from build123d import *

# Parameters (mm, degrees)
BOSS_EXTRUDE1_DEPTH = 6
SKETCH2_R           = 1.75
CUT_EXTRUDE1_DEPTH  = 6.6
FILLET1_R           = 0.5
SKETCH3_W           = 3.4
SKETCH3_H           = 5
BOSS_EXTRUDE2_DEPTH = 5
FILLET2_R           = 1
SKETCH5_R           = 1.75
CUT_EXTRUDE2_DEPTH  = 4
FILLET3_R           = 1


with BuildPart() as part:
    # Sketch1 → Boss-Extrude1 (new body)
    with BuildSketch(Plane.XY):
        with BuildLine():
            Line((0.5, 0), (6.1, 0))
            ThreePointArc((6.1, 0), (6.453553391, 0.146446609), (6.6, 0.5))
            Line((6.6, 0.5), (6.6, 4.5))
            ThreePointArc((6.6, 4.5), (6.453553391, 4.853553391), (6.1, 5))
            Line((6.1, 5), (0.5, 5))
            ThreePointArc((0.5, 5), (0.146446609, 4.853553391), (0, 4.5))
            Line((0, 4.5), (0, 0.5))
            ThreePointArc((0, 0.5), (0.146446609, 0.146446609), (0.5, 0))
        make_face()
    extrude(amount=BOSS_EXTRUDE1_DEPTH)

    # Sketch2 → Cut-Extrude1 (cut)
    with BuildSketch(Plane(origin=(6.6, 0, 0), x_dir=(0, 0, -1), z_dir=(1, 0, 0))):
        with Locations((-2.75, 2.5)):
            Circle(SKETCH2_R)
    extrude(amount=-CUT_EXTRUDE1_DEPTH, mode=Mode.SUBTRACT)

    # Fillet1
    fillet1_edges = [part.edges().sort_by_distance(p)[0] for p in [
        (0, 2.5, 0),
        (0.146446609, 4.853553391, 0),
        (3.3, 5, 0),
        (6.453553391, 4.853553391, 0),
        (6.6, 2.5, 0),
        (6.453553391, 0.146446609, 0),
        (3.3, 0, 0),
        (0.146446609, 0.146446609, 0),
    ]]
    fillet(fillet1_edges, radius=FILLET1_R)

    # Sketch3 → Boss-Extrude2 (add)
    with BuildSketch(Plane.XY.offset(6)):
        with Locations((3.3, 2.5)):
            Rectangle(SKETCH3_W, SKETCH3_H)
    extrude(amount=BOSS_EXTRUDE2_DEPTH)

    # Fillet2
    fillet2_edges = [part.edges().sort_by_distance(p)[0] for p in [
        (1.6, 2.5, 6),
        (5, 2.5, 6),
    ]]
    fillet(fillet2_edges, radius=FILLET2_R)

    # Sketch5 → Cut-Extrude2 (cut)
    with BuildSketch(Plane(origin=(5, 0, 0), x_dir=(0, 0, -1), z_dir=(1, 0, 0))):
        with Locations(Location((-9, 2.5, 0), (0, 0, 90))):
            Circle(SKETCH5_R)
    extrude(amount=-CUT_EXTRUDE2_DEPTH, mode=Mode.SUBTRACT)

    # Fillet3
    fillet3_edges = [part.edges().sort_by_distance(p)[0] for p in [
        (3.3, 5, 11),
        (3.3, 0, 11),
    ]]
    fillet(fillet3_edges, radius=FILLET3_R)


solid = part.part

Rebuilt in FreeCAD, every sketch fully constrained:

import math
import FreeCAD as App
import Part
import Sketcher
Q = App.Units.Quantity


def edges_at(feature, points):
    """Names of the edges that pass closest to the given points."""
    edges = feature.Shape.Edges
    near = lambda p: min(range(len(edges)), key=lambda i: edges[i].distToShape(Part.Vertex(*p))[0])
    return sorted({f"Edge{near(p) + 1}" for p in points})


def add_polygon(sketch, points):
    """Adds a closed chain of lines whose ends are joined by coincident constraints."""
    first, n = sketch.GeometryCount, len(points)
    for a, b in zip(points, points[1:] + points[:1]):
        sketch.addGeometry(Part.LineSegment(App.Vector(*a, 0), App.Vector(*b, 0)), False)
    for i in range(n):
        sketch.addConstraint(Sketcher.Constraint("Coincident", first + i, 2, first + (i + 1) % n, 1))

doc = App.newDocument("Part")
params = doc.addObject("Spreadsheet::Sheet", "Params")
for row, (alias, value) in enumerate([
    ("sketch1_radius", "0.5 mm"),
    ("sketch1_height", "4 mm"),
    ("sketch1_width", "5.6 mm"),
    ("pad1_length", "6 mm"),
    ("sketch2_diameter", "3.5 mm"),
    ("pocket1_length", "6.6 mm"),
    ("fillet_radius", "0.5 mm"),
    ("sketch3_height", "5 mm"),
    ("sketch3_width", "3.4 mm"),
    ("pad2_length", "5 mm"),
    ("fillet2_radius", "1 mm"),
    ("sketch4_diameter", "3.5 mm"),
    ("pocket2_length", "4 mm"),
    ("fillet3_radius", "1 mm"),
], start=1):
    params.set(f"A{row}", alias)
    params.set(f"B{row}", "=" + value)
    params.setAlias(f"B{row}", alias)

body = doc.addObject("PartDesign::Body", "Body")

# Sketch on XY plane
sketch1 = body.newObject("Sketcher::SketchObject", "Sketch")
sketch1.AttachmentSupport = (doc.getObject("XY_Plane"), [""])
sketch1.MapMode = "FlatFace"
sketch1.addGeometry(Part.LineSegment(App.Vector(0.5, 0, 0), App.Vector(6.1, 0, 0)), False)
sketch1.addGeometry(Part.ArcOfCircle(Part.Circle(App.Vector(6.1, 0.5, 0), App.Vector(0, 0, 1), 0.5), math.radians(-90), math.radians(0)), False)
sketch1.addGeometry(Part.LineSegment(App.Vector(6.6, 0.5, 0), App.Vector(6.6, 4.5, 0)), False)
sketch1.addGeometry(Part.ArcOfCircle(Part.Circle(App.Vector(6.1, 4.5, 0), App.Vector(0, 0, 1), 0.5), math.radians(0), math.radians(90)), False)
sketch1.addGeometry(Part.LineSegment(App.Vector(6.1, 5, 0), App.Vector(0.5, 5, 0)), False)
sketch1.addGeometry(Part.ArcOfCircle(Part.Circle(App.Vector(0.5, 4.5, 0), App.Vector(0, 0, 1), 0.5), math.radians(90), math.radians(180)), False)
sketch1.addGeometry(Part.LineSegment(App.Vector(0, 4.5, 0), App.Vector(0, 0.5, 0)), False)
sketch1.addGeometry(Part.ArcOfCircle(Part.Circle(App.Vector(0.5, 0.5, 0), App.Vector(0, 0, 1), 0.5), math.radians(180), math.radians(270)), False)
sketch1.addConstraint(Sketcher.Constraint("Tangent", 0, 2, 1, 1))
sketch1.addConstraint(Sketcher.Constraint("Tangent", 1, 2, 2, 1))
sketch1.addConstraint(Sketcher.Constraint("Tangent", 2, 2, 3, 1))
sketch1.addConstraint(Sketcher.Constraint("Tangent", 3, 2, 4, 1))
sketch1.addConstraint(Sketcher.Constraint("Tangent", 4, 2, 5, 1))
sketch1.addConstraint(Sketcher.Constraint("Tangent", 5, 2, 6, 1))
sketch1.addConstraint(Sketcher.Constraint("Tangent", 6, 2, 7, 1))
sketch1.addConstraint(Sketcher.Constraint("Tangent", 7, 2, 0, 1))
sketch1.addConstraint(Sketcher.Constraint("Horizontal", 0))
sketch1.addConstraint(Sketcher.Constraint("Vertical", 2))
sketch1.addConstraint(Sketcher.Constraint("Horizontal", 4))
sketch1.addConstraint(Sketcher.Constraint("Vertical", 6))
sketch1.addConstraint(Sketcher.Constraint("Equal", 1, 3))
sketch1.addConstraint(Sketcher.Constraint("Equal", 3, 5))
sketch1.addConstraint(Sketcher.Constraint("Equal", 5, 7))
sketch1.addConstraint(Sketcher.Constraint("PointOnObject", 0, 2, -1))
sketch1.addConstraint(Sketcher.Constraint("PointOnObject", 5, 2, -2))
sketch1.addConstraint(Sketcher.Constraint("Radius", 1, Q("0.5 mm")))
sketch1.addConstraint(Sketcher.Constraint("DistanceY", 2, 1, 2, 2, Q("4 mm")))
sketch1.addConstraint(Sketcher.Constraint("DistanceX", 0, 1, 0, 2, Q("5.6 mm")))
sketch1.setExpression("Constraints[17]", "Params.sketch1_radius")
sketch1.setExpression("Constraints[18]", "Params.sketch1_height")
sketch1.setExpression("Constraints[19]", "Params.sketch1_width")
pad1 = body.newObject("PartDesign::Pad", "Pad")
pad1.Profile = sketch1
pad1.setExpression("Length", "Params.pad1_length")

# Sketch on YZ plane
sketch2 = body.newObject("Sketcher::SketchObject", "Sketch001")
sketch2.AttachmentSupport = (doc.getObject("YZ_Plane"), [""])
sketch2.MapMode = "FlatFace"
sketch2.AttachmentOffset = App.Placement(App.Vector(0, 0, 6.6), App.Rotation())
sketch2.addGeometry(Part.Circle(App.Vector(2.5, 2.75, 0), App.Vector(0, 0, 1), 1.75), False)
sketch2.addConstraint(Sketcher.Constraint("Diameter", 0, Q("3.5 mm")))
sketch2.addConstraint(Sketcher.Constraint("DistanceX", -1, 1, 0, 3, Q("2.5 mm")))
sketch2.addConstraint(Sketcher.Constraint("DistanceY", -1, 1, 0, 3, Q("2.75 mm")))
sketch2.setExpression("Constraints[0]", "Params.sketch2_diameter")
pocket1 = body.newObject("PartDesign::Pocket", "Pocket")
pocket1.Profile = sketch2
pocket1.setExpression("Length", "Params.pocket1_length")
doc.recompute()

fillet = body.newObject("PartDesign::Fillet", "Fillet")
fillet.Base = (pocket1, edges_at(pocket1, [
    (0, 2.5, 0),
    (0.146, 4.854, 0),
    (3.3, 5, 0),
    (6.454, 4.854, 0),
    (6.6, 2.5, 0),
    (6.454, 0.146, 0),
    (3.3, 0, 0),
    (0.146, 0.146, 0),
]))
fillet.setExpression("Radius", "Params.fillet_radius")

# Sketch on XY plane
sketch3 = body.newObject("Sketcher::SketchObject", "Sketch002")
sketch3.AttachmentSupport = (doc.getObject("XY_Plane"), [""])
sketch3.MapMode = "FlatFace"
sketch3.AttachmentOffset = App.Placement(App.Vector(0, 0, 6), App.Rotation())
add_polygon(sketch3, [(1.6, 5), (1.6, 0), (5, 0), (5, 5)])  # lines 0-3
sketch3.addConstraint(Sketcher.Constraint("Vertical", 0))
sketch3.addConstraint(Sketcher.Constraint("Horizontal", 1))
sketch3.addConstraint(Sketcher.Constraint("Vertical", 2))
sketch3.addConstraint(Sketcher.Constraint("Horizontal", 3))
sketch3.addConstraint(Sketcher.Constraint("PointOnObject", 0, 2, -1))
sketch3.addConstraint(Sketcher.Constraint("DistanceY", 0, 2, 0, 1, Q("5 mm")))
sketch3.addConstraint(Sketcher.Constraint("DistanceX", 1, 1, 1, 2, Q("3.4 mm")))
sketch3.addConstraint(Sketcher.Constraint("DistanceX", -1, 1, 1, 2, Q("5 mm")))
sketch3.setExpression("Constraints[9]", "Params.sketch3_height")
sketch3.setExpression("Constraints[10]", "Params.sketch3_width")
pad2 = body.newObject("PartDesign::Pad", "Pad001")
pad2.Profile = sketch3
pad2.setExpression("Length", "Params.pad2_length")
doc.recompute()

fillet2 = body.newObject("PartDesign::Fillet", "Fillet001")
fillet2.Base = (pad2, edges_at(pad2, [(1.6, 2.5, 6), (5, 2.5, 6)]))
fillet2.setExpression("Radius", "Params.fillet2_radius")

# Sketch on YZ plane
sketch4 = body.newObject("Sketcher::SketchObject", "Sketch003")
sketch4.AttachmentSupport = (doc.getObject("YZ_Plane"), [""])
sketch4.MapMode = "FlatFace"
sketch4.AttachmentOffset = App.Placement(App.Vector(0, 0, 5), App.Rotation())
sketch4.addGeometry(Part.Circle(App.Vector(2.5, 9, 0), App.Vector(0, 0, 1), 1.75), False)
sketch4.addConstraint(Sketcher.Constraint("Diameter", 0, Q("3.5 mm")))
sketch4.addConstraint(Sketcher.Constraint("DistanceY", -1, 1, 0, 3, Q("9 mm")))
sketch4.addConstraint(Sketcher.Constraint("DistanceX", -1, 1, 0, 3, Q("2.5 mm")))
sketch4.setExpression("Constraints[0]", "Params.sketch4_diameter")
pocket2 = body.newObject("PartDesign::Pocket", "Pocket001")
pocket2.Profile = sketch4
pocket2.setExpression("Length", "Params.pocket2_length")
doc.recompute()

fillet3 = body.newObject("PartDesign::Fillet", "Fillet002")
fillet3.Base = (pocket2, edges_at(pocket2, [(3.3, 5, 11), (3.3, 0, 11)]))
fillet3.setExpression("Radius", "Params.fillet3_radius")

doc.recompute()
